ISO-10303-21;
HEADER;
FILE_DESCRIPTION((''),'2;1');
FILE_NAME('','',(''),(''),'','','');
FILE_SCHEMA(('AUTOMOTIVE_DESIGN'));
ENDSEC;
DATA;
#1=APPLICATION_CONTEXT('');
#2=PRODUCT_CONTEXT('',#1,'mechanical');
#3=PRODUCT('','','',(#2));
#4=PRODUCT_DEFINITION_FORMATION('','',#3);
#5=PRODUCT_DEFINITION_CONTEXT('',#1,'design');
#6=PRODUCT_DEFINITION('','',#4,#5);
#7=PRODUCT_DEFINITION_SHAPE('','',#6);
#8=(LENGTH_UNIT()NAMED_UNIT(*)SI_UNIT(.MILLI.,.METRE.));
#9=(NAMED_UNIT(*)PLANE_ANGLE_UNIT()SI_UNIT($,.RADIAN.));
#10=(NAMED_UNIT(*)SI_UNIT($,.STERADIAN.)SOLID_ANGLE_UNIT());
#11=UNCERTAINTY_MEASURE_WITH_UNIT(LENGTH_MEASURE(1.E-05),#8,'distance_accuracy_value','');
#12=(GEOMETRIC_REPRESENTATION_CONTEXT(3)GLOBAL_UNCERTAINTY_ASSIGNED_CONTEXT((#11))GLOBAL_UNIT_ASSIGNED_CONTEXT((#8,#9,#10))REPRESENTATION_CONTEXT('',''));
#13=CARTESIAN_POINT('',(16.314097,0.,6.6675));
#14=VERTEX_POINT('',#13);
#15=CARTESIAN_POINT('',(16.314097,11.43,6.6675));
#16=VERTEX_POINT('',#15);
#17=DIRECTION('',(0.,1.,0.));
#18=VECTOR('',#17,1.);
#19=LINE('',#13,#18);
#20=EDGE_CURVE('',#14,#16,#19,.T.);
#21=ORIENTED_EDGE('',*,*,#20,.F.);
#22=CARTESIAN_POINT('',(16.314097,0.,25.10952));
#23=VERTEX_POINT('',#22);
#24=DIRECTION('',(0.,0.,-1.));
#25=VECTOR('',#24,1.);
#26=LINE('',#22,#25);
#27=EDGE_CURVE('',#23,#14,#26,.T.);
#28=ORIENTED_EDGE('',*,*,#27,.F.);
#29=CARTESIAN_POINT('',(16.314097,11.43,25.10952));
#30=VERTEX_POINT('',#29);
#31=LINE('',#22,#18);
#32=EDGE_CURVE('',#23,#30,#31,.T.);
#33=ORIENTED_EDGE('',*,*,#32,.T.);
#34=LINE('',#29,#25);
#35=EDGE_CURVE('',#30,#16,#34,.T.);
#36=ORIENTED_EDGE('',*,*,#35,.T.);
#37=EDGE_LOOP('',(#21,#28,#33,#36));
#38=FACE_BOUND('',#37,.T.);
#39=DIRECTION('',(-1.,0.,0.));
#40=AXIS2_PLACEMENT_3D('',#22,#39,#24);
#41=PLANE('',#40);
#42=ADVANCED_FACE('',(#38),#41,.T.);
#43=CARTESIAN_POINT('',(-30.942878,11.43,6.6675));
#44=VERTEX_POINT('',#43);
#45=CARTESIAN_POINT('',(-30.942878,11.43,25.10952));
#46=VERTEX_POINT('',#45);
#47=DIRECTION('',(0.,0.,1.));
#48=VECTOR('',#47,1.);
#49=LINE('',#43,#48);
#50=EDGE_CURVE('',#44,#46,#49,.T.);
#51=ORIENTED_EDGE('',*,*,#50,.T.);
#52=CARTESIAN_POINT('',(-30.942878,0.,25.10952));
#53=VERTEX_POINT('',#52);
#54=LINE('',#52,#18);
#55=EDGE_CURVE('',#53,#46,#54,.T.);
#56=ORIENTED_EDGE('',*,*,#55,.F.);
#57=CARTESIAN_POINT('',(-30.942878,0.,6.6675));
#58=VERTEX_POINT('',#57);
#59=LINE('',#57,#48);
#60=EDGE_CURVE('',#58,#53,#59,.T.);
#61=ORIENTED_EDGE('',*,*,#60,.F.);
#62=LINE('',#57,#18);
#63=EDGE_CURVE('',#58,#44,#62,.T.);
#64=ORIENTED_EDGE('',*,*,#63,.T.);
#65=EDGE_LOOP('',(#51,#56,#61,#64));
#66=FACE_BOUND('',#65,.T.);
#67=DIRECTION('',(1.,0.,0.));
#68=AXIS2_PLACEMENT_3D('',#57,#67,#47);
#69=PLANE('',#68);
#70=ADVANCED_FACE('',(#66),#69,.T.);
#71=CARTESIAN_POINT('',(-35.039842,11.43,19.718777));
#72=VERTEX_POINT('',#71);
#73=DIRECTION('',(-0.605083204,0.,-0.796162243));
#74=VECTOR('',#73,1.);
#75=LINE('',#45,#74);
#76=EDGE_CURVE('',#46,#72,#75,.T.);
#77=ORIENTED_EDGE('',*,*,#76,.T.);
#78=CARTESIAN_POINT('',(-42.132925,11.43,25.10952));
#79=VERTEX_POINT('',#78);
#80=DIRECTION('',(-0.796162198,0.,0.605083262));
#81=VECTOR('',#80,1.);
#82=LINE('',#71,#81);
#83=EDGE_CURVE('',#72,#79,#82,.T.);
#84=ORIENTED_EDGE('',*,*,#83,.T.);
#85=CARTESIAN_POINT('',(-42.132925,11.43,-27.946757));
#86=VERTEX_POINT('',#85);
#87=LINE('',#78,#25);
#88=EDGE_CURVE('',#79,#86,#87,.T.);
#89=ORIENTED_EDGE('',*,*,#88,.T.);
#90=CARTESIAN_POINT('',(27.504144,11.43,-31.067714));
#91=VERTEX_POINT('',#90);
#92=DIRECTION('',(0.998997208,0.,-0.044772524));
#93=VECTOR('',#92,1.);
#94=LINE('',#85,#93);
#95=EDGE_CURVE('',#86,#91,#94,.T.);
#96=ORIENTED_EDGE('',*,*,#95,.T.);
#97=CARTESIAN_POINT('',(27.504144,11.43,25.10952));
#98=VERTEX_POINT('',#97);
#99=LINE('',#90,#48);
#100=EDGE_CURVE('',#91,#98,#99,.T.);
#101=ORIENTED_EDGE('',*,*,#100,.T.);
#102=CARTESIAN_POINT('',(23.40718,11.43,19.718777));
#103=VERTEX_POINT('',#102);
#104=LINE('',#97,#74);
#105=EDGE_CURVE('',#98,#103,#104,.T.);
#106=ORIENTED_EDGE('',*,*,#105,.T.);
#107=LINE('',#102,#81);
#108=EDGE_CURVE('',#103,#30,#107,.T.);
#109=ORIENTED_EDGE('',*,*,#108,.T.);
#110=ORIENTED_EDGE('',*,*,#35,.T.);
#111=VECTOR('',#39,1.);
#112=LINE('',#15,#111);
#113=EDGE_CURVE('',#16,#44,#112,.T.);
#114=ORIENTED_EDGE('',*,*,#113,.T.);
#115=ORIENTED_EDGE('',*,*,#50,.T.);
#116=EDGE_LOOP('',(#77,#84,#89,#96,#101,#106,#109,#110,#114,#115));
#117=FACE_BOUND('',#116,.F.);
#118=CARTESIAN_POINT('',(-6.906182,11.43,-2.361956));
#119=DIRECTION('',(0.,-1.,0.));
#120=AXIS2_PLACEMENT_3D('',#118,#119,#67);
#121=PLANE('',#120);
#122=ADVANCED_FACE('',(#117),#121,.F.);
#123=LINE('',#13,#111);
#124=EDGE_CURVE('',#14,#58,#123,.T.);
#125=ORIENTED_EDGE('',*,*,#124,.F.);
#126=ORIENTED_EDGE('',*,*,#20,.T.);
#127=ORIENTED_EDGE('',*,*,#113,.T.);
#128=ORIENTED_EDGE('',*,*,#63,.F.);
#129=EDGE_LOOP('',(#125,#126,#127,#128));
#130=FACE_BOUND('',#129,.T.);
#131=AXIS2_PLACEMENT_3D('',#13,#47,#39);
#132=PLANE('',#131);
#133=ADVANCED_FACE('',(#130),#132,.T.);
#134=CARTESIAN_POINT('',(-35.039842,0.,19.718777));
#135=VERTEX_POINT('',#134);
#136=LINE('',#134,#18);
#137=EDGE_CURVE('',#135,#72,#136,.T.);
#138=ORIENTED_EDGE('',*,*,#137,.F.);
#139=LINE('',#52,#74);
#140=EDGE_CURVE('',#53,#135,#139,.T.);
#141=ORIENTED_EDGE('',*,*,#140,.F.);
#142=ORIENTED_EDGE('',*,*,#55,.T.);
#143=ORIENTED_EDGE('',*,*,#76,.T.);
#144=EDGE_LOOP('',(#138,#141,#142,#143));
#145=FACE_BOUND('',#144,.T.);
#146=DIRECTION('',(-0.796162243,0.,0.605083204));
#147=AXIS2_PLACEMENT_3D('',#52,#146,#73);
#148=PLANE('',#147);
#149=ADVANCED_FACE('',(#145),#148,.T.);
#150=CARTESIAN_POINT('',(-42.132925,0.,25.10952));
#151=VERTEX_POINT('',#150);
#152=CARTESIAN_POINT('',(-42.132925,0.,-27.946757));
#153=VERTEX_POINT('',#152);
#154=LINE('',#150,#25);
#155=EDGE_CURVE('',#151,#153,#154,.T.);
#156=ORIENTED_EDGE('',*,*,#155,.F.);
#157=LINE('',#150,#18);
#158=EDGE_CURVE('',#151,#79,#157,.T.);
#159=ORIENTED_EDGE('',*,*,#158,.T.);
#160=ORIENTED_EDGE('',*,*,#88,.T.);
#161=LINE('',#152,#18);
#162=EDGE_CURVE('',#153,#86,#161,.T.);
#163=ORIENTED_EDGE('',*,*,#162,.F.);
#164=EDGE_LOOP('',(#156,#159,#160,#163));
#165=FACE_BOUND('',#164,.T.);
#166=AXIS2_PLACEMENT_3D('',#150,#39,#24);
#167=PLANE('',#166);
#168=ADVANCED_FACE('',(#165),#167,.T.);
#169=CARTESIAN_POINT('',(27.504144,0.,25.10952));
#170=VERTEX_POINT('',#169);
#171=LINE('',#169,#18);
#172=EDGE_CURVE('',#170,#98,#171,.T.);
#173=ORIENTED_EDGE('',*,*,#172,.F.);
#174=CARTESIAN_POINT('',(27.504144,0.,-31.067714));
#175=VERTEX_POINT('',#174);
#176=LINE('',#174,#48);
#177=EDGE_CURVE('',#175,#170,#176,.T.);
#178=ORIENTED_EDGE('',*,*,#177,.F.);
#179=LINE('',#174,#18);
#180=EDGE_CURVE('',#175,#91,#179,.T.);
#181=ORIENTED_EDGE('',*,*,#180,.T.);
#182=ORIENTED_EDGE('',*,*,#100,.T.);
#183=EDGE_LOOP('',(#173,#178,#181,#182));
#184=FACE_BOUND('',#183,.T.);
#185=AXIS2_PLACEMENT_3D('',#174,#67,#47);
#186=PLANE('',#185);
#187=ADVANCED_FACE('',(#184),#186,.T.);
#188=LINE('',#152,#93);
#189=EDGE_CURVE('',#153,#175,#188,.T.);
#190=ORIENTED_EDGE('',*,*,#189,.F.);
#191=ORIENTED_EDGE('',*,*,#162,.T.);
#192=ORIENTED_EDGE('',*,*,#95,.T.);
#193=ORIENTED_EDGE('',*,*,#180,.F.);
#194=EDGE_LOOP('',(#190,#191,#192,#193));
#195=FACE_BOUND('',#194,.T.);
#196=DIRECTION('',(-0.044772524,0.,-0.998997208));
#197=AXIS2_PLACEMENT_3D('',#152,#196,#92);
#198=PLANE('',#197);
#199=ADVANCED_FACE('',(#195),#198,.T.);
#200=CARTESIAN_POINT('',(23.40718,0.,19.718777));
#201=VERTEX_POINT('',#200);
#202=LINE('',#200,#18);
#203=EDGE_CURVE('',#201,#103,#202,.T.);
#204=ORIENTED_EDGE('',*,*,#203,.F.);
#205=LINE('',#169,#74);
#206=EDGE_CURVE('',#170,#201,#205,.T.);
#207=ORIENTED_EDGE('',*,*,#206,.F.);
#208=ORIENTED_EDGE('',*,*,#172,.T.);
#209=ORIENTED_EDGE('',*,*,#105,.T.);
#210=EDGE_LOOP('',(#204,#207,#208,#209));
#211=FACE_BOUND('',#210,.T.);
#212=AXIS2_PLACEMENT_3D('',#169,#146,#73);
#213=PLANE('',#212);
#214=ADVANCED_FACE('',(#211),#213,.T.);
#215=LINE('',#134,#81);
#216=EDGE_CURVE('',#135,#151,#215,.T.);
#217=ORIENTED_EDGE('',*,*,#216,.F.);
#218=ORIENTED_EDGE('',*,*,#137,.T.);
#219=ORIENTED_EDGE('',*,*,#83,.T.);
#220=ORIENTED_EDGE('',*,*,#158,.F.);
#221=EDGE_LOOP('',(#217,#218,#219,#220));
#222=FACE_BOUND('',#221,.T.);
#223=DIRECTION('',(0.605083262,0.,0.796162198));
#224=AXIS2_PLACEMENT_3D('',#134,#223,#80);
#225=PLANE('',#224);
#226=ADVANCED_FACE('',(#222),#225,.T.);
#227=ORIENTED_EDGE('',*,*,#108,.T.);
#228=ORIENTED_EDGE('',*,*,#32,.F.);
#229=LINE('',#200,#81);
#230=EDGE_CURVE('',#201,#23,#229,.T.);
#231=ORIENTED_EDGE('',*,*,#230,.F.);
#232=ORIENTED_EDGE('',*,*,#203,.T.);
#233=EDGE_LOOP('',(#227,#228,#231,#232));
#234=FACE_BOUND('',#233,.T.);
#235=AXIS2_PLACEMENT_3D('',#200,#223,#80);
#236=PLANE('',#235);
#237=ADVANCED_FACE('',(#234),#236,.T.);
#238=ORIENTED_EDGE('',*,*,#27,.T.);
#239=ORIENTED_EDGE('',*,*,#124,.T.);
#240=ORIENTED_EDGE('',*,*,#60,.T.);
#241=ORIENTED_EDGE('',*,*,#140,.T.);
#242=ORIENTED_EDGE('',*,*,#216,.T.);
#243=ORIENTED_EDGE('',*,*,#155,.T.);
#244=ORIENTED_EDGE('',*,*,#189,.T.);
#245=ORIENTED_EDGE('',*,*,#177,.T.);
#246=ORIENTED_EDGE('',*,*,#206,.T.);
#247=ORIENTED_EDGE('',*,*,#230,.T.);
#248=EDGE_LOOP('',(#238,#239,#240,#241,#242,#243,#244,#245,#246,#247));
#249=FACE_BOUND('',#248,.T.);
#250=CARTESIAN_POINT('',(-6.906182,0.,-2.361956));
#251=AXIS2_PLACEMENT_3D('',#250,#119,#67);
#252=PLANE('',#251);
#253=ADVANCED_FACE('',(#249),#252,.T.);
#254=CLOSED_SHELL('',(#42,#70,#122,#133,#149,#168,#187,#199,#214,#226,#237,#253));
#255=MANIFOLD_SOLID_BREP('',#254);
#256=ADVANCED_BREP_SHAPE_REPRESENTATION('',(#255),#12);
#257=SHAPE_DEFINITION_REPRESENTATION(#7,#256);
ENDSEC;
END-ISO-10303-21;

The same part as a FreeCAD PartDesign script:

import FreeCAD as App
import Part
import Sketcher
Q = App.Units.Quantity


def add_polygon(sketch, points):
    """Adds a closed chain of lines whose ends are joined by coincident constraints."""
    first, n = sketch.GeometryCount, len(points)
    for a, b in zip(points, points[1:] + points[:1]):
        sketch.addGeometry(Part.LineSegment(App.Vector(*a, 0), App.Vector(*b, 0)), False)
    for i in range(n):
        sketch.addConstraint(Sketcher.Constraint("Coincident", first + i, 2, first + (i + 1) % n, 1))

doc = App.newDocument("Part")
params = doc.addObject("Spreadsheet::Sheet", "Params")
for row, (alias, value) in enumerate([
    ("pad1_length", "0.45 in"),
], start=1):
    params.set(f"A{row}", alias)
    params.set(f"B{row}", "=" + value)
    params.setAlias(f"B{row}", alias)

body = doc.addObject("PartDesign::Body", "Body")

# Sketch on XZ plane
sketch1 = body.newObject("Sketcher::SketchObject", "Sketch")
sketch1.AttachmentSupport = (doc.getObject("XZ_Plane"), [""])
sketch1.MapMode = "FlatFace"
add_polygon(sketch1, [(-35.039842, 19.718777), (-42.132925, 25.10952), (-42.132925, -27.946757), (27.504144, -31.067714), (27.504144, 25.10952), (23.40718, 19.718777), (16.314097, 25.10952), (16.314097, 6.6675), (-30.942878, 6.6675), (-30.942878, 25.10952)])  # lines 0-9
sketch1.addConstraint(Sketcher.Constraint("Vertical", 1))
sketch1.addConstraint(Sketcher.Constraint("Vertical", 3))
sketch1.addConstraint(Sketcher.Constraint("Vertical", 6))
sketch1.addConstraint(Sketcher.Constraint("Horizontal", 7))
sketch1.addConstraint(Sketcher.Constraint("Vertical", 8))
sketch1.addConstraint(Sketcher.Constraint("Perpendicular", 0, 4))
sketch1.addConstraint(Sketcher.Constraint("Perpendicular", 4, 5))
sketch1.addConstraint(Sketcher.Constraint("Perpendicular", 5, 9))
sketch1.addConstraint(Sketcher.Constraint("Horizontal", 0, 2, 3, 2))
sketch1.addConstraint(Sketcher.Constraint("Horizontal", 3, 2, 5, 2))
sketch1.addConstraint(Sketcher.Constraint("Horizontal", 5, 2, 8, 2))
sketch1.addConstraint(Sketcher.Constraint("Horizontal", 4, 2, 9, 2))
sketch1.addConstraint(Sketcher.Constraint("DistanceY", -1, 1, 6, 2, Q("0.2625 in")))
sketch1.addConstraint(Sketcher.Constraint("DistanceY", 6, 2, 6, 1, 18.44202))
sketch1.addConstraint(Sketcher.Constraint("Distance", 2, 69.706971))
sketch1.addConstraint(Sketcher.Constraint("Distance", 4, 6.77091))
sketch1.addConstraint(Sketcher.Constraint("DistanceX", 7, 2, 7, 1, 47.256975))
sketch1.addConstraint(Sketcher.Constraint("DistanceY", 1, 2, 1, 1, 53.056277))
sketch1.addConstraint(Sketcher.Constraint("DistanceY", 3, 1, 3, 2, 56.177234))
sketch1.addConstraint(Sketcher.Constraint("DistanceX", -1, 1, 4, 2, 23.40718))
pad1 = body.newObject("PartDesign::Pad", "Pad")
pad1.Profile = sketch1
pad1.setExpression("Length", "Params.pad1_length")
pad1.Reversed = True

doc.recompute()
